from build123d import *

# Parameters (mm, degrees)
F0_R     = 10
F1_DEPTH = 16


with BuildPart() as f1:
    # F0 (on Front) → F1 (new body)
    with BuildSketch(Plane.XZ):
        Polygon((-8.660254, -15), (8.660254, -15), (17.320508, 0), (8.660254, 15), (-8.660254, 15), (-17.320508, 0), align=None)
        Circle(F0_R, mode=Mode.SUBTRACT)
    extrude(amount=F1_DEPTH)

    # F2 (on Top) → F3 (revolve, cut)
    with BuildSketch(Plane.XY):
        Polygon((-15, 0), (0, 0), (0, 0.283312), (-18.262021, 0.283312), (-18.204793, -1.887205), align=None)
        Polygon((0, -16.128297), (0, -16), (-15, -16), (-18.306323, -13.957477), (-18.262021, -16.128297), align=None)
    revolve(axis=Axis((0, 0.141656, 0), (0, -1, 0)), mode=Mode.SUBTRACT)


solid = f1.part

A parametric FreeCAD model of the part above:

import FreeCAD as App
import Part
import Sketcher
Q = App.Units.Quantity


def add_polygon(sketch, points):
    """Adds a closed chain of lines whose ends are joined by coincident constraints."""
    first, n = sketch.GeometryCount, len(points)
    for a, b in zip(points, points[1:] + points[:1]):
        sketch.addGeometry(Part.LineSegment(App.Vector(*a, 0), App.Vector(*b, 0)), False)
    for i in range(n):
        sketch.addConstraint(Sketcher.Constraint("Coincident", first + i, 2, first + (i + 1) % n, 1))

doc = App.newDocument("Part")
body = doc.addObject("PartDesign::Body", "Body")

# Sketch on XZ plane
sketch1 = body.newObject("Sketcher::SketchObject", "Sketch")
sketch1.AttachmentSupport = (doc.getObject("XZ_Plane"), [""])
sketch1.MapMode = "FlatFace"
add_polygon(sketch1, [(-9, -15), (9, -15), (17, 0), (9, 15), (-9, 15), (-17, 0)])  # lines 0-5
sketch1.addGeometry(Part.Circle(App.Vector(0, 0, 0), App.Vector(0, 0, 1), 10), False)  # 6
sketch1.addConstraint([
    Sketcher.Constraint("Horizontal", 0),
    Sketcher.Constraint("Horizontal", 3),
    Sketcher.Constraint("Coincident", 6, 3, -1, 1),
    Sketcher.Constraint("Symmetric", 0, 2, 3, 2, -1, 1),
    Sketcher.Constraint("Symmetric", 1, 2, 4, 2, -1, 1),
    Sketcher.Constraint("PointOnObject", 1, 2, -1),
    Sketcher.Constraint("Parallel", 2, 5),
    Sketcher.Constraint("Vertical", 0, 2, 2, 2),
    Sketcher.Constraint("Diameter", 6, Q("20 mm")),
    Sketcher.Constraint("Angle", 1, Q("60 deg")),
    Sketcher.Constraint("DistanceY", 0, 2, -1, 1, Q("15 mm")),
    Sketcher.Constraint("DistanceX", 0, 1, 0, 2, Q("17.320508 mm")),
])
pad1 = body.newObject("PartDesign::Pad", "Pad")
pad1.Profile = sketch1
pad1.Length = 16

# Sketch on XY plane
sketch2 = body.newObject("Sketcher::SketchObject", "Sketch001")
sketch2.AttachmentSupport = (doc.getObject("XY_Plane"), [""])
sketch2.MapMode = "FlatFace"
add_polygon(sketch2, [(-15, 0), (0, 0), (0, 0.28), (-18.26, 0.28), (-18.2, -1.89)])  # lines 0-4
add_polygon(sketch2, [(0, -16.13), (0, -16), (-15, -16), (-18.31, -13.96), (-18.26, -16.13)])  # lines 5-9
sketch2.addConstraint([
    Sketcher.Constraint("Horizontal", 0),
    Sketcher.Constraint("Vertical", 1),
    Sketcher.Constraint("Horizontal", 2),
    Sketcher.Constraint("Vertical", 5),
    Sketcher.Constraint("Horizontal", 6),
    Sketcher.Constraint("Horizontal", 9),
    Sketcher.Constraint("Coincident", 0, 2, -1, 1),
    Sketcher.Constraint("PointOnObject", 5, 2, -2),
    Sketcher.Constraint("Vertical", 4, 2, 6, 2),
    Sketcher.Constraint("Vertical", 2, 2, 8, 2),
    Sketcher.Constraint("Equal", 3, 8),
    Sketcher.Constraint("DistanceX", 0, 1, 0, 2, Q("15 mm")),
    Sketcher.Constraint("DistanceY", 5, 2, -1, 1, Q("16 mm")),
    Sketcher.Constraint("DistanceX", 2, 2, 2, 1, Q("18.262021 mm")),
    Sketcher.Constraint("DistanceX", 7, 2, 2, 2, Q("0.044302 mm")),
    Sketcher.Constraint("Distance", 3, Q("2.171271 mm")),
    Sketcher.Constraint("DistanceY", 1, 1, 1, 2, Q("0.283312 mm")),
    Sketcher.Constraint("DistanceY", 5, 1, 5, 2, Q("0.128297 mm")),
    Sketcher.Constraint("DistanceX", 2, 2, 3, 2, Q("0.057228 mm")),
])
groove = body.newObject("PartDesign::Groove", "Groove")
groove.Profile = sketch2
groove.ReferenceAxis = (sketch2, ["V_Axis"])
groove.Angle = 360

doc.recompute()
